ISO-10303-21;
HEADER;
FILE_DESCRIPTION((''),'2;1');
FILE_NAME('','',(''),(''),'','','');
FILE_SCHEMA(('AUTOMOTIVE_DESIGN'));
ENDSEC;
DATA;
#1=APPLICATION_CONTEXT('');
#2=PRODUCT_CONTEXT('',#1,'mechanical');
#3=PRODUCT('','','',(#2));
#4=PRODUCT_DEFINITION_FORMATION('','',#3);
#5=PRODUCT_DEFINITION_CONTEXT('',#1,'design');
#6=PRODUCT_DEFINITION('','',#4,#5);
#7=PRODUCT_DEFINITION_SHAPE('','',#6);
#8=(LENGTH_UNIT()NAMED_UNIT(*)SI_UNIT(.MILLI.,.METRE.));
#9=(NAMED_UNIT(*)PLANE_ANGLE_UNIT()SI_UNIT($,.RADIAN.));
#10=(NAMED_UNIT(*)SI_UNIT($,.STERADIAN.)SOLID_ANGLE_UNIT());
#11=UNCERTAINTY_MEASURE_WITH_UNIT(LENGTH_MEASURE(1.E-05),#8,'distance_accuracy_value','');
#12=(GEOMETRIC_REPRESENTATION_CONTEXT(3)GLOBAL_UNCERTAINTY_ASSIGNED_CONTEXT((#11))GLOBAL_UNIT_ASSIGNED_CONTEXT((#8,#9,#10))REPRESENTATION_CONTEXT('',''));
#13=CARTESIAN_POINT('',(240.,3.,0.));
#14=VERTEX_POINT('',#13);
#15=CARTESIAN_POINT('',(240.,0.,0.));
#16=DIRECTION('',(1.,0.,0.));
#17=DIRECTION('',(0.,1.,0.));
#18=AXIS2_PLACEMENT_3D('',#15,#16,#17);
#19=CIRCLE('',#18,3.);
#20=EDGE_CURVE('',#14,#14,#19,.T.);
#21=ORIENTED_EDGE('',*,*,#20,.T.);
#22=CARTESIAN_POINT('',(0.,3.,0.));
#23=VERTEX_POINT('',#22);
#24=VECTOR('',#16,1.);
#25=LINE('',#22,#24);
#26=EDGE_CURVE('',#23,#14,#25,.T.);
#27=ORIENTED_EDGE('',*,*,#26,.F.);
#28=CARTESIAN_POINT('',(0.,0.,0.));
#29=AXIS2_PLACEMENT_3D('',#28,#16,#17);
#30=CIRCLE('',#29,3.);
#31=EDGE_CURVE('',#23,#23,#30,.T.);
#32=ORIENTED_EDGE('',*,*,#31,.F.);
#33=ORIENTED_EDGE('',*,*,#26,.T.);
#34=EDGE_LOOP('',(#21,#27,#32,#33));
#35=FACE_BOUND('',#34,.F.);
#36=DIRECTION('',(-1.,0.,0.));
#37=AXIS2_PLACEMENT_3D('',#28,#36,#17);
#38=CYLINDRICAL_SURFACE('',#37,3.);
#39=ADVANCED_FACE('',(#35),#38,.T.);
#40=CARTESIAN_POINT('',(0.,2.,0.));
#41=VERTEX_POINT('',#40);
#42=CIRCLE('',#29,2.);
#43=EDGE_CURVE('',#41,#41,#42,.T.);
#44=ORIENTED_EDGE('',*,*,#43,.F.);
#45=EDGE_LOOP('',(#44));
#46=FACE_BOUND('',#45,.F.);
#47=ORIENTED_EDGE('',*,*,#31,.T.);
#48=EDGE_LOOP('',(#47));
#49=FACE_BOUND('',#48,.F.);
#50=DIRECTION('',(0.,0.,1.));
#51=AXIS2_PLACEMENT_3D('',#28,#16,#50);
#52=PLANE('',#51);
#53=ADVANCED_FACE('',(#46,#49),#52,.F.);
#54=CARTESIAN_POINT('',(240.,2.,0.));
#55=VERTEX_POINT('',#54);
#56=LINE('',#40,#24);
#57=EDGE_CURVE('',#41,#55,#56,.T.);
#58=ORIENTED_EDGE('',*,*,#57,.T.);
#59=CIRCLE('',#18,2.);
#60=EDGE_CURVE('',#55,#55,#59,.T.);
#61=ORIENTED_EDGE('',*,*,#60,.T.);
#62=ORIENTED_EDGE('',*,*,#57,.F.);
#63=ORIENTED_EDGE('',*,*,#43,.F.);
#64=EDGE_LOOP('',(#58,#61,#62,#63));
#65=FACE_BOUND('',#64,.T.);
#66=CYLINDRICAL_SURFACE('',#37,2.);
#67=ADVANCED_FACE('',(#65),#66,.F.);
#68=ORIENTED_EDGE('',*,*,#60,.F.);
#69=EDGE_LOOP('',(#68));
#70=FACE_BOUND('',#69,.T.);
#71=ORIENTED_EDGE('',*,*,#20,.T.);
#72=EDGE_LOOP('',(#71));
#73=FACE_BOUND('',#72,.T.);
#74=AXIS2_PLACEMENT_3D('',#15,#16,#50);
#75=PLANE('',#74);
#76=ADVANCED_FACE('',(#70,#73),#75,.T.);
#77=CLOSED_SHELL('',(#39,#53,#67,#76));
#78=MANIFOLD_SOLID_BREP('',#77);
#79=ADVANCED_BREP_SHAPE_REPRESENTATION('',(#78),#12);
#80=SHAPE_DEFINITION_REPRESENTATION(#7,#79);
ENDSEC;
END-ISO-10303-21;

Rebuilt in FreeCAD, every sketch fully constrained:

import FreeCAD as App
import Part
import Sketcher
from FreeCAD import Vector
Q = App.Units.Quantity

doc = App.newDocument("Part")
body = doc.addObject("PartDesign::Body", "Body")

# Sketch on YZ plane
sketch1 = body.newObject("Sketcher::SketchObject", "Sketch")
sketch1.AttachmentSupport = (doc.getObject("YZ_Plane"), [""])
sketch1.MapMode = "FlatFace"
sketch1.addGeometry(Part.Circle(Vector(0, 0, 0), Vector(0, 0, 1), 3), False)
sketch1.addGeometry(Part.Circle(Vector(0, 0, 0), Vector(0, 0, 1), 2), False)
sketch1.addConstraint(Sketcher.Constraint("Coincident", 0, 3, -1, 1))
sketch1.addConstraint(Sketcher.Constraint("Coincident", 1, 3, -1, 1))
sketch1.addConstraint(Sketcher.Constraint("Diameter", 0, Q("6 mm")))
sketch1.addConstraint(Sketcher.Constraint("Diameter", 1, Q("4 mm")))
pad1 = body.newObject("PartDesign::Pad", "Pad")
pad1.Profile = sketch1
pad1.Length = 240

doc.recompute()
